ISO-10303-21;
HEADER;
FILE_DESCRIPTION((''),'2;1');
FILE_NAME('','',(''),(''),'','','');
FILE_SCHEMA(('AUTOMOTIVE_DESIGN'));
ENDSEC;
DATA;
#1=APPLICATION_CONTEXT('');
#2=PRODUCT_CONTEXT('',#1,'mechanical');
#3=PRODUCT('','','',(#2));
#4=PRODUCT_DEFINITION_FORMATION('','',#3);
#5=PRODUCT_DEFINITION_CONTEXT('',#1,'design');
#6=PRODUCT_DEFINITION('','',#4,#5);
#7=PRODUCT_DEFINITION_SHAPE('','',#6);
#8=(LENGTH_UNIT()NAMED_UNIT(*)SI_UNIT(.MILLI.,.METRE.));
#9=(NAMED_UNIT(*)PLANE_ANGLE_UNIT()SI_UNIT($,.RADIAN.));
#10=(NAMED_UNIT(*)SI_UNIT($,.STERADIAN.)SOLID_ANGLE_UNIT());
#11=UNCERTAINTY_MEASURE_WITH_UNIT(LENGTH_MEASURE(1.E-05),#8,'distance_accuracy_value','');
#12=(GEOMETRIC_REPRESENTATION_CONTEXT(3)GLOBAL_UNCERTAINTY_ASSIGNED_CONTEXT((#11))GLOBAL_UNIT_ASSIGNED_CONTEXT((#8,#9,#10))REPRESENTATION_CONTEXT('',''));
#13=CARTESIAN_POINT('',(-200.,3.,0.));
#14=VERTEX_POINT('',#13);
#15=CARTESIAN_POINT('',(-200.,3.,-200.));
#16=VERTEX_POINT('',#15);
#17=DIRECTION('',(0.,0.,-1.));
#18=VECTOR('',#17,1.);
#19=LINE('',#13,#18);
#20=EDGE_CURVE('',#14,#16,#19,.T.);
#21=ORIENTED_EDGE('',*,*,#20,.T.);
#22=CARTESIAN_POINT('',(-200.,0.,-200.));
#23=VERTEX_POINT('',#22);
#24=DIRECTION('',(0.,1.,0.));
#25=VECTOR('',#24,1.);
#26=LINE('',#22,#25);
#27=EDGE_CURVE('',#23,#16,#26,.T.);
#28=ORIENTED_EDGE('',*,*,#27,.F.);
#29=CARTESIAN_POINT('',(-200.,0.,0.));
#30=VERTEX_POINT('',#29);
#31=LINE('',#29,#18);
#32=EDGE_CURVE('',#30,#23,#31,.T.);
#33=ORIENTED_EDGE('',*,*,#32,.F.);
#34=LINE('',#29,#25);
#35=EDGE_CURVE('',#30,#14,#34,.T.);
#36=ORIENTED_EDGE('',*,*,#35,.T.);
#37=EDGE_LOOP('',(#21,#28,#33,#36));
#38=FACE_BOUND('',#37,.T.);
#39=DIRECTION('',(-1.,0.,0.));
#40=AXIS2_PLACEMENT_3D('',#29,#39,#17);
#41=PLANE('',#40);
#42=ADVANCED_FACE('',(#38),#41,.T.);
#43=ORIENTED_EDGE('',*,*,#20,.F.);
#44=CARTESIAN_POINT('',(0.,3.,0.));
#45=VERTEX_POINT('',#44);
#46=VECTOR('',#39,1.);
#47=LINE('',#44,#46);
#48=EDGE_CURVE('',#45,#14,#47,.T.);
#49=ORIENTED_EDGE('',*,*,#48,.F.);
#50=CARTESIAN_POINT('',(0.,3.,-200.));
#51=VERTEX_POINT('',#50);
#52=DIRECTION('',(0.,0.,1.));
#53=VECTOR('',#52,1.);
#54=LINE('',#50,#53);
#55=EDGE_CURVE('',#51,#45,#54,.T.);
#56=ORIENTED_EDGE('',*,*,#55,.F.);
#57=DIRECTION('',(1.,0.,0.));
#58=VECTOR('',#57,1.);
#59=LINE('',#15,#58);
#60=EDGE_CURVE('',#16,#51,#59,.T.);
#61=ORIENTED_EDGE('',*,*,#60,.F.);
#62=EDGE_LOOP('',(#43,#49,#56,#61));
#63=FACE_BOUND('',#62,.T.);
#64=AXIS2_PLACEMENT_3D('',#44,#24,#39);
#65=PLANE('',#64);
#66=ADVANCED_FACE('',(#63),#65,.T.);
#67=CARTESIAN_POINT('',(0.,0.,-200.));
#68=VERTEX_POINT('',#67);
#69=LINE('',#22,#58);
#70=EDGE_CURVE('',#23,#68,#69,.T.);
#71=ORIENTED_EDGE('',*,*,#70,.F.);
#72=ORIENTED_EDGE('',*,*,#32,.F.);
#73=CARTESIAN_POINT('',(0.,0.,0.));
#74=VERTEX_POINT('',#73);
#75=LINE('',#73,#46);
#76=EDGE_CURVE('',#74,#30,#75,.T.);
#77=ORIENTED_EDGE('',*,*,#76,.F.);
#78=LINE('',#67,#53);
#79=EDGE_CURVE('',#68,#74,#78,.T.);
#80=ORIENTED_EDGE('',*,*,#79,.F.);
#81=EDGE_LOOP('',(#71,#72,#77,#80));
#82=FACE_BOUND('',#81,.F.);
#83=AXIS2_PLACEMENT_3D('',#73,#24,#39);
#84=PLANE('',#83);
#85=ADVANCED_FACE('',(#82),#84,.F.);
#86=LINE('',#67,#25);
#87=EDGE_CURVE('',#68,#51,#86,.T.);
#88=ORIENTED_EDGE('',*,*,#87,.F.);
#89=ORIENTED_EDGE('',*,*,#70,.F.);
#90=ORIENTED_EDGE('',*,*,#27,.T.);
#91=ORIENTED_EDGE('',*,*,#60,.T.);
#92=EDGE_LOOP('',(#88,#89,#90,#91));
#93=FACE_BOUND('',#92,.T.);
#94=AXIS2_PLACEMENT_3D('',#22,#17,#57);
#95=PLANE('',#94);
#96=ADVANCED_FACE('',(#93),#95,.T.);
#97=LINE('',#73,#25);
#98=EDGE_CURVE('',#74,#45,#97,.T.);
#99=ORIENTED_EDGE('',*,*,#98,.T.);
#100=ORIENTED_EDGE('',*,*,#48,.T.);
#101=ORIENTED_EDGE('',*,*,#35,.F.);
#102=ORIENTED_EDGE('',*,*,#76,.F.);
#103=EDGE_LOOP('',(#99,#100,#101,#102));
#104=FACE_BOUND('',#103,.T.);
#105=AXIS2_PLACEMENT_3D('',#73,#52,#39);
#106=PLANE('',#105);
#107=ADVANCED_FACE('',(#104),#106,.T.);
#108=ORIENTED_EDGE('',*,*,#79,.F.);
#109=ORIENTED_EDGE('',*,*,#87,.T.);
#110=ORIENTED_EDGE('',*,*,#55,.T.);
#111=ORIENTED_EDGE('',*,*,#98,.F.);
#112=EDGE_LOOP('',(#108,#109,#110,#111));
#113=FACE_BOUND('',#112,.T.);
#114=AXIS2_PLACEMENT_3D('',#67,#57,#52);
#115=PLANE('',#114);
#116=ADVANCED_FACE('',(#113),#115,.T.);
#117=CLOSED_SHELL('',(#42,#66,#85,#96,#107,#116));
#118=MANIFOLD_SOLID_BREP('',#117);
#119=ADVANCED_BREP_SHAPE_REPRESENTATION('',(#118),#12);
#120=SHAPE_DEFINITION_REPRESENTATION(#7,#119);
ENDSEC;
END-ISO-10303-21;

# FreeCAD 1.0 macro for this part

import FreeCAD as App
import Part
import Sketcher

V = App.Vector


def add_polygon(sketch, points):
    """Adds a closed chain of lines whose ends are joined by coincident constraints."""
    first, n = sketch.GeometryCount, len(points)
    for a, b in zip(points, points[1:] + points[:1]):
        sketch.addGeometry(Part.LineSegment(App.Vector(*a, 0), App.Vector(*b, 0)), False)
    for i in range(n):
        sketch.addConstraint(Sketcher.Constraint("Coincident", first + i, 2, first + (i + 1) % n, 1))

doc = App.newDocument("Part")
body = doc.addObject("PartDesign::Body", "Body")

# Sketch on XZ plane
sketch1 = doc.addObject("Sketcher::SketchObject", "Sketch")
body.addObject(sketch1)
sketch1.AttachmentSupport = (doc.XZ_Plane, [""])
sketch1.MapMode = "FlatFace"
add_polygon(sketch1, [(-200, 0), (0, 0), (0, -200), (-200, -200)])  # lines 0-3
sketch1.addConstraint([
    Sketcher.Constraint("Horizontal", 0),
    Sketcher.Constraint("Vertical", 1),
    Sketcher.Constraint("Horizontal", 2),
    Sketcher.Constraint("Vertical", 3),
    Sketcher.Constraint("Coincident", 0, 2, -1, 1),
    Sketcher.Constraint("Equal", 2, 1),
    Sketcher.Constraint("DistanceX", 0, 1, 0, 2, 200.0),
])
pad1 = doc.addObject("PartDesign::Pad", "Pad")
body.addObject(pad1)
pad1.Profile = sketch1
pad1.Length = 3
pad1.Reversed = True

doc.recompute()
